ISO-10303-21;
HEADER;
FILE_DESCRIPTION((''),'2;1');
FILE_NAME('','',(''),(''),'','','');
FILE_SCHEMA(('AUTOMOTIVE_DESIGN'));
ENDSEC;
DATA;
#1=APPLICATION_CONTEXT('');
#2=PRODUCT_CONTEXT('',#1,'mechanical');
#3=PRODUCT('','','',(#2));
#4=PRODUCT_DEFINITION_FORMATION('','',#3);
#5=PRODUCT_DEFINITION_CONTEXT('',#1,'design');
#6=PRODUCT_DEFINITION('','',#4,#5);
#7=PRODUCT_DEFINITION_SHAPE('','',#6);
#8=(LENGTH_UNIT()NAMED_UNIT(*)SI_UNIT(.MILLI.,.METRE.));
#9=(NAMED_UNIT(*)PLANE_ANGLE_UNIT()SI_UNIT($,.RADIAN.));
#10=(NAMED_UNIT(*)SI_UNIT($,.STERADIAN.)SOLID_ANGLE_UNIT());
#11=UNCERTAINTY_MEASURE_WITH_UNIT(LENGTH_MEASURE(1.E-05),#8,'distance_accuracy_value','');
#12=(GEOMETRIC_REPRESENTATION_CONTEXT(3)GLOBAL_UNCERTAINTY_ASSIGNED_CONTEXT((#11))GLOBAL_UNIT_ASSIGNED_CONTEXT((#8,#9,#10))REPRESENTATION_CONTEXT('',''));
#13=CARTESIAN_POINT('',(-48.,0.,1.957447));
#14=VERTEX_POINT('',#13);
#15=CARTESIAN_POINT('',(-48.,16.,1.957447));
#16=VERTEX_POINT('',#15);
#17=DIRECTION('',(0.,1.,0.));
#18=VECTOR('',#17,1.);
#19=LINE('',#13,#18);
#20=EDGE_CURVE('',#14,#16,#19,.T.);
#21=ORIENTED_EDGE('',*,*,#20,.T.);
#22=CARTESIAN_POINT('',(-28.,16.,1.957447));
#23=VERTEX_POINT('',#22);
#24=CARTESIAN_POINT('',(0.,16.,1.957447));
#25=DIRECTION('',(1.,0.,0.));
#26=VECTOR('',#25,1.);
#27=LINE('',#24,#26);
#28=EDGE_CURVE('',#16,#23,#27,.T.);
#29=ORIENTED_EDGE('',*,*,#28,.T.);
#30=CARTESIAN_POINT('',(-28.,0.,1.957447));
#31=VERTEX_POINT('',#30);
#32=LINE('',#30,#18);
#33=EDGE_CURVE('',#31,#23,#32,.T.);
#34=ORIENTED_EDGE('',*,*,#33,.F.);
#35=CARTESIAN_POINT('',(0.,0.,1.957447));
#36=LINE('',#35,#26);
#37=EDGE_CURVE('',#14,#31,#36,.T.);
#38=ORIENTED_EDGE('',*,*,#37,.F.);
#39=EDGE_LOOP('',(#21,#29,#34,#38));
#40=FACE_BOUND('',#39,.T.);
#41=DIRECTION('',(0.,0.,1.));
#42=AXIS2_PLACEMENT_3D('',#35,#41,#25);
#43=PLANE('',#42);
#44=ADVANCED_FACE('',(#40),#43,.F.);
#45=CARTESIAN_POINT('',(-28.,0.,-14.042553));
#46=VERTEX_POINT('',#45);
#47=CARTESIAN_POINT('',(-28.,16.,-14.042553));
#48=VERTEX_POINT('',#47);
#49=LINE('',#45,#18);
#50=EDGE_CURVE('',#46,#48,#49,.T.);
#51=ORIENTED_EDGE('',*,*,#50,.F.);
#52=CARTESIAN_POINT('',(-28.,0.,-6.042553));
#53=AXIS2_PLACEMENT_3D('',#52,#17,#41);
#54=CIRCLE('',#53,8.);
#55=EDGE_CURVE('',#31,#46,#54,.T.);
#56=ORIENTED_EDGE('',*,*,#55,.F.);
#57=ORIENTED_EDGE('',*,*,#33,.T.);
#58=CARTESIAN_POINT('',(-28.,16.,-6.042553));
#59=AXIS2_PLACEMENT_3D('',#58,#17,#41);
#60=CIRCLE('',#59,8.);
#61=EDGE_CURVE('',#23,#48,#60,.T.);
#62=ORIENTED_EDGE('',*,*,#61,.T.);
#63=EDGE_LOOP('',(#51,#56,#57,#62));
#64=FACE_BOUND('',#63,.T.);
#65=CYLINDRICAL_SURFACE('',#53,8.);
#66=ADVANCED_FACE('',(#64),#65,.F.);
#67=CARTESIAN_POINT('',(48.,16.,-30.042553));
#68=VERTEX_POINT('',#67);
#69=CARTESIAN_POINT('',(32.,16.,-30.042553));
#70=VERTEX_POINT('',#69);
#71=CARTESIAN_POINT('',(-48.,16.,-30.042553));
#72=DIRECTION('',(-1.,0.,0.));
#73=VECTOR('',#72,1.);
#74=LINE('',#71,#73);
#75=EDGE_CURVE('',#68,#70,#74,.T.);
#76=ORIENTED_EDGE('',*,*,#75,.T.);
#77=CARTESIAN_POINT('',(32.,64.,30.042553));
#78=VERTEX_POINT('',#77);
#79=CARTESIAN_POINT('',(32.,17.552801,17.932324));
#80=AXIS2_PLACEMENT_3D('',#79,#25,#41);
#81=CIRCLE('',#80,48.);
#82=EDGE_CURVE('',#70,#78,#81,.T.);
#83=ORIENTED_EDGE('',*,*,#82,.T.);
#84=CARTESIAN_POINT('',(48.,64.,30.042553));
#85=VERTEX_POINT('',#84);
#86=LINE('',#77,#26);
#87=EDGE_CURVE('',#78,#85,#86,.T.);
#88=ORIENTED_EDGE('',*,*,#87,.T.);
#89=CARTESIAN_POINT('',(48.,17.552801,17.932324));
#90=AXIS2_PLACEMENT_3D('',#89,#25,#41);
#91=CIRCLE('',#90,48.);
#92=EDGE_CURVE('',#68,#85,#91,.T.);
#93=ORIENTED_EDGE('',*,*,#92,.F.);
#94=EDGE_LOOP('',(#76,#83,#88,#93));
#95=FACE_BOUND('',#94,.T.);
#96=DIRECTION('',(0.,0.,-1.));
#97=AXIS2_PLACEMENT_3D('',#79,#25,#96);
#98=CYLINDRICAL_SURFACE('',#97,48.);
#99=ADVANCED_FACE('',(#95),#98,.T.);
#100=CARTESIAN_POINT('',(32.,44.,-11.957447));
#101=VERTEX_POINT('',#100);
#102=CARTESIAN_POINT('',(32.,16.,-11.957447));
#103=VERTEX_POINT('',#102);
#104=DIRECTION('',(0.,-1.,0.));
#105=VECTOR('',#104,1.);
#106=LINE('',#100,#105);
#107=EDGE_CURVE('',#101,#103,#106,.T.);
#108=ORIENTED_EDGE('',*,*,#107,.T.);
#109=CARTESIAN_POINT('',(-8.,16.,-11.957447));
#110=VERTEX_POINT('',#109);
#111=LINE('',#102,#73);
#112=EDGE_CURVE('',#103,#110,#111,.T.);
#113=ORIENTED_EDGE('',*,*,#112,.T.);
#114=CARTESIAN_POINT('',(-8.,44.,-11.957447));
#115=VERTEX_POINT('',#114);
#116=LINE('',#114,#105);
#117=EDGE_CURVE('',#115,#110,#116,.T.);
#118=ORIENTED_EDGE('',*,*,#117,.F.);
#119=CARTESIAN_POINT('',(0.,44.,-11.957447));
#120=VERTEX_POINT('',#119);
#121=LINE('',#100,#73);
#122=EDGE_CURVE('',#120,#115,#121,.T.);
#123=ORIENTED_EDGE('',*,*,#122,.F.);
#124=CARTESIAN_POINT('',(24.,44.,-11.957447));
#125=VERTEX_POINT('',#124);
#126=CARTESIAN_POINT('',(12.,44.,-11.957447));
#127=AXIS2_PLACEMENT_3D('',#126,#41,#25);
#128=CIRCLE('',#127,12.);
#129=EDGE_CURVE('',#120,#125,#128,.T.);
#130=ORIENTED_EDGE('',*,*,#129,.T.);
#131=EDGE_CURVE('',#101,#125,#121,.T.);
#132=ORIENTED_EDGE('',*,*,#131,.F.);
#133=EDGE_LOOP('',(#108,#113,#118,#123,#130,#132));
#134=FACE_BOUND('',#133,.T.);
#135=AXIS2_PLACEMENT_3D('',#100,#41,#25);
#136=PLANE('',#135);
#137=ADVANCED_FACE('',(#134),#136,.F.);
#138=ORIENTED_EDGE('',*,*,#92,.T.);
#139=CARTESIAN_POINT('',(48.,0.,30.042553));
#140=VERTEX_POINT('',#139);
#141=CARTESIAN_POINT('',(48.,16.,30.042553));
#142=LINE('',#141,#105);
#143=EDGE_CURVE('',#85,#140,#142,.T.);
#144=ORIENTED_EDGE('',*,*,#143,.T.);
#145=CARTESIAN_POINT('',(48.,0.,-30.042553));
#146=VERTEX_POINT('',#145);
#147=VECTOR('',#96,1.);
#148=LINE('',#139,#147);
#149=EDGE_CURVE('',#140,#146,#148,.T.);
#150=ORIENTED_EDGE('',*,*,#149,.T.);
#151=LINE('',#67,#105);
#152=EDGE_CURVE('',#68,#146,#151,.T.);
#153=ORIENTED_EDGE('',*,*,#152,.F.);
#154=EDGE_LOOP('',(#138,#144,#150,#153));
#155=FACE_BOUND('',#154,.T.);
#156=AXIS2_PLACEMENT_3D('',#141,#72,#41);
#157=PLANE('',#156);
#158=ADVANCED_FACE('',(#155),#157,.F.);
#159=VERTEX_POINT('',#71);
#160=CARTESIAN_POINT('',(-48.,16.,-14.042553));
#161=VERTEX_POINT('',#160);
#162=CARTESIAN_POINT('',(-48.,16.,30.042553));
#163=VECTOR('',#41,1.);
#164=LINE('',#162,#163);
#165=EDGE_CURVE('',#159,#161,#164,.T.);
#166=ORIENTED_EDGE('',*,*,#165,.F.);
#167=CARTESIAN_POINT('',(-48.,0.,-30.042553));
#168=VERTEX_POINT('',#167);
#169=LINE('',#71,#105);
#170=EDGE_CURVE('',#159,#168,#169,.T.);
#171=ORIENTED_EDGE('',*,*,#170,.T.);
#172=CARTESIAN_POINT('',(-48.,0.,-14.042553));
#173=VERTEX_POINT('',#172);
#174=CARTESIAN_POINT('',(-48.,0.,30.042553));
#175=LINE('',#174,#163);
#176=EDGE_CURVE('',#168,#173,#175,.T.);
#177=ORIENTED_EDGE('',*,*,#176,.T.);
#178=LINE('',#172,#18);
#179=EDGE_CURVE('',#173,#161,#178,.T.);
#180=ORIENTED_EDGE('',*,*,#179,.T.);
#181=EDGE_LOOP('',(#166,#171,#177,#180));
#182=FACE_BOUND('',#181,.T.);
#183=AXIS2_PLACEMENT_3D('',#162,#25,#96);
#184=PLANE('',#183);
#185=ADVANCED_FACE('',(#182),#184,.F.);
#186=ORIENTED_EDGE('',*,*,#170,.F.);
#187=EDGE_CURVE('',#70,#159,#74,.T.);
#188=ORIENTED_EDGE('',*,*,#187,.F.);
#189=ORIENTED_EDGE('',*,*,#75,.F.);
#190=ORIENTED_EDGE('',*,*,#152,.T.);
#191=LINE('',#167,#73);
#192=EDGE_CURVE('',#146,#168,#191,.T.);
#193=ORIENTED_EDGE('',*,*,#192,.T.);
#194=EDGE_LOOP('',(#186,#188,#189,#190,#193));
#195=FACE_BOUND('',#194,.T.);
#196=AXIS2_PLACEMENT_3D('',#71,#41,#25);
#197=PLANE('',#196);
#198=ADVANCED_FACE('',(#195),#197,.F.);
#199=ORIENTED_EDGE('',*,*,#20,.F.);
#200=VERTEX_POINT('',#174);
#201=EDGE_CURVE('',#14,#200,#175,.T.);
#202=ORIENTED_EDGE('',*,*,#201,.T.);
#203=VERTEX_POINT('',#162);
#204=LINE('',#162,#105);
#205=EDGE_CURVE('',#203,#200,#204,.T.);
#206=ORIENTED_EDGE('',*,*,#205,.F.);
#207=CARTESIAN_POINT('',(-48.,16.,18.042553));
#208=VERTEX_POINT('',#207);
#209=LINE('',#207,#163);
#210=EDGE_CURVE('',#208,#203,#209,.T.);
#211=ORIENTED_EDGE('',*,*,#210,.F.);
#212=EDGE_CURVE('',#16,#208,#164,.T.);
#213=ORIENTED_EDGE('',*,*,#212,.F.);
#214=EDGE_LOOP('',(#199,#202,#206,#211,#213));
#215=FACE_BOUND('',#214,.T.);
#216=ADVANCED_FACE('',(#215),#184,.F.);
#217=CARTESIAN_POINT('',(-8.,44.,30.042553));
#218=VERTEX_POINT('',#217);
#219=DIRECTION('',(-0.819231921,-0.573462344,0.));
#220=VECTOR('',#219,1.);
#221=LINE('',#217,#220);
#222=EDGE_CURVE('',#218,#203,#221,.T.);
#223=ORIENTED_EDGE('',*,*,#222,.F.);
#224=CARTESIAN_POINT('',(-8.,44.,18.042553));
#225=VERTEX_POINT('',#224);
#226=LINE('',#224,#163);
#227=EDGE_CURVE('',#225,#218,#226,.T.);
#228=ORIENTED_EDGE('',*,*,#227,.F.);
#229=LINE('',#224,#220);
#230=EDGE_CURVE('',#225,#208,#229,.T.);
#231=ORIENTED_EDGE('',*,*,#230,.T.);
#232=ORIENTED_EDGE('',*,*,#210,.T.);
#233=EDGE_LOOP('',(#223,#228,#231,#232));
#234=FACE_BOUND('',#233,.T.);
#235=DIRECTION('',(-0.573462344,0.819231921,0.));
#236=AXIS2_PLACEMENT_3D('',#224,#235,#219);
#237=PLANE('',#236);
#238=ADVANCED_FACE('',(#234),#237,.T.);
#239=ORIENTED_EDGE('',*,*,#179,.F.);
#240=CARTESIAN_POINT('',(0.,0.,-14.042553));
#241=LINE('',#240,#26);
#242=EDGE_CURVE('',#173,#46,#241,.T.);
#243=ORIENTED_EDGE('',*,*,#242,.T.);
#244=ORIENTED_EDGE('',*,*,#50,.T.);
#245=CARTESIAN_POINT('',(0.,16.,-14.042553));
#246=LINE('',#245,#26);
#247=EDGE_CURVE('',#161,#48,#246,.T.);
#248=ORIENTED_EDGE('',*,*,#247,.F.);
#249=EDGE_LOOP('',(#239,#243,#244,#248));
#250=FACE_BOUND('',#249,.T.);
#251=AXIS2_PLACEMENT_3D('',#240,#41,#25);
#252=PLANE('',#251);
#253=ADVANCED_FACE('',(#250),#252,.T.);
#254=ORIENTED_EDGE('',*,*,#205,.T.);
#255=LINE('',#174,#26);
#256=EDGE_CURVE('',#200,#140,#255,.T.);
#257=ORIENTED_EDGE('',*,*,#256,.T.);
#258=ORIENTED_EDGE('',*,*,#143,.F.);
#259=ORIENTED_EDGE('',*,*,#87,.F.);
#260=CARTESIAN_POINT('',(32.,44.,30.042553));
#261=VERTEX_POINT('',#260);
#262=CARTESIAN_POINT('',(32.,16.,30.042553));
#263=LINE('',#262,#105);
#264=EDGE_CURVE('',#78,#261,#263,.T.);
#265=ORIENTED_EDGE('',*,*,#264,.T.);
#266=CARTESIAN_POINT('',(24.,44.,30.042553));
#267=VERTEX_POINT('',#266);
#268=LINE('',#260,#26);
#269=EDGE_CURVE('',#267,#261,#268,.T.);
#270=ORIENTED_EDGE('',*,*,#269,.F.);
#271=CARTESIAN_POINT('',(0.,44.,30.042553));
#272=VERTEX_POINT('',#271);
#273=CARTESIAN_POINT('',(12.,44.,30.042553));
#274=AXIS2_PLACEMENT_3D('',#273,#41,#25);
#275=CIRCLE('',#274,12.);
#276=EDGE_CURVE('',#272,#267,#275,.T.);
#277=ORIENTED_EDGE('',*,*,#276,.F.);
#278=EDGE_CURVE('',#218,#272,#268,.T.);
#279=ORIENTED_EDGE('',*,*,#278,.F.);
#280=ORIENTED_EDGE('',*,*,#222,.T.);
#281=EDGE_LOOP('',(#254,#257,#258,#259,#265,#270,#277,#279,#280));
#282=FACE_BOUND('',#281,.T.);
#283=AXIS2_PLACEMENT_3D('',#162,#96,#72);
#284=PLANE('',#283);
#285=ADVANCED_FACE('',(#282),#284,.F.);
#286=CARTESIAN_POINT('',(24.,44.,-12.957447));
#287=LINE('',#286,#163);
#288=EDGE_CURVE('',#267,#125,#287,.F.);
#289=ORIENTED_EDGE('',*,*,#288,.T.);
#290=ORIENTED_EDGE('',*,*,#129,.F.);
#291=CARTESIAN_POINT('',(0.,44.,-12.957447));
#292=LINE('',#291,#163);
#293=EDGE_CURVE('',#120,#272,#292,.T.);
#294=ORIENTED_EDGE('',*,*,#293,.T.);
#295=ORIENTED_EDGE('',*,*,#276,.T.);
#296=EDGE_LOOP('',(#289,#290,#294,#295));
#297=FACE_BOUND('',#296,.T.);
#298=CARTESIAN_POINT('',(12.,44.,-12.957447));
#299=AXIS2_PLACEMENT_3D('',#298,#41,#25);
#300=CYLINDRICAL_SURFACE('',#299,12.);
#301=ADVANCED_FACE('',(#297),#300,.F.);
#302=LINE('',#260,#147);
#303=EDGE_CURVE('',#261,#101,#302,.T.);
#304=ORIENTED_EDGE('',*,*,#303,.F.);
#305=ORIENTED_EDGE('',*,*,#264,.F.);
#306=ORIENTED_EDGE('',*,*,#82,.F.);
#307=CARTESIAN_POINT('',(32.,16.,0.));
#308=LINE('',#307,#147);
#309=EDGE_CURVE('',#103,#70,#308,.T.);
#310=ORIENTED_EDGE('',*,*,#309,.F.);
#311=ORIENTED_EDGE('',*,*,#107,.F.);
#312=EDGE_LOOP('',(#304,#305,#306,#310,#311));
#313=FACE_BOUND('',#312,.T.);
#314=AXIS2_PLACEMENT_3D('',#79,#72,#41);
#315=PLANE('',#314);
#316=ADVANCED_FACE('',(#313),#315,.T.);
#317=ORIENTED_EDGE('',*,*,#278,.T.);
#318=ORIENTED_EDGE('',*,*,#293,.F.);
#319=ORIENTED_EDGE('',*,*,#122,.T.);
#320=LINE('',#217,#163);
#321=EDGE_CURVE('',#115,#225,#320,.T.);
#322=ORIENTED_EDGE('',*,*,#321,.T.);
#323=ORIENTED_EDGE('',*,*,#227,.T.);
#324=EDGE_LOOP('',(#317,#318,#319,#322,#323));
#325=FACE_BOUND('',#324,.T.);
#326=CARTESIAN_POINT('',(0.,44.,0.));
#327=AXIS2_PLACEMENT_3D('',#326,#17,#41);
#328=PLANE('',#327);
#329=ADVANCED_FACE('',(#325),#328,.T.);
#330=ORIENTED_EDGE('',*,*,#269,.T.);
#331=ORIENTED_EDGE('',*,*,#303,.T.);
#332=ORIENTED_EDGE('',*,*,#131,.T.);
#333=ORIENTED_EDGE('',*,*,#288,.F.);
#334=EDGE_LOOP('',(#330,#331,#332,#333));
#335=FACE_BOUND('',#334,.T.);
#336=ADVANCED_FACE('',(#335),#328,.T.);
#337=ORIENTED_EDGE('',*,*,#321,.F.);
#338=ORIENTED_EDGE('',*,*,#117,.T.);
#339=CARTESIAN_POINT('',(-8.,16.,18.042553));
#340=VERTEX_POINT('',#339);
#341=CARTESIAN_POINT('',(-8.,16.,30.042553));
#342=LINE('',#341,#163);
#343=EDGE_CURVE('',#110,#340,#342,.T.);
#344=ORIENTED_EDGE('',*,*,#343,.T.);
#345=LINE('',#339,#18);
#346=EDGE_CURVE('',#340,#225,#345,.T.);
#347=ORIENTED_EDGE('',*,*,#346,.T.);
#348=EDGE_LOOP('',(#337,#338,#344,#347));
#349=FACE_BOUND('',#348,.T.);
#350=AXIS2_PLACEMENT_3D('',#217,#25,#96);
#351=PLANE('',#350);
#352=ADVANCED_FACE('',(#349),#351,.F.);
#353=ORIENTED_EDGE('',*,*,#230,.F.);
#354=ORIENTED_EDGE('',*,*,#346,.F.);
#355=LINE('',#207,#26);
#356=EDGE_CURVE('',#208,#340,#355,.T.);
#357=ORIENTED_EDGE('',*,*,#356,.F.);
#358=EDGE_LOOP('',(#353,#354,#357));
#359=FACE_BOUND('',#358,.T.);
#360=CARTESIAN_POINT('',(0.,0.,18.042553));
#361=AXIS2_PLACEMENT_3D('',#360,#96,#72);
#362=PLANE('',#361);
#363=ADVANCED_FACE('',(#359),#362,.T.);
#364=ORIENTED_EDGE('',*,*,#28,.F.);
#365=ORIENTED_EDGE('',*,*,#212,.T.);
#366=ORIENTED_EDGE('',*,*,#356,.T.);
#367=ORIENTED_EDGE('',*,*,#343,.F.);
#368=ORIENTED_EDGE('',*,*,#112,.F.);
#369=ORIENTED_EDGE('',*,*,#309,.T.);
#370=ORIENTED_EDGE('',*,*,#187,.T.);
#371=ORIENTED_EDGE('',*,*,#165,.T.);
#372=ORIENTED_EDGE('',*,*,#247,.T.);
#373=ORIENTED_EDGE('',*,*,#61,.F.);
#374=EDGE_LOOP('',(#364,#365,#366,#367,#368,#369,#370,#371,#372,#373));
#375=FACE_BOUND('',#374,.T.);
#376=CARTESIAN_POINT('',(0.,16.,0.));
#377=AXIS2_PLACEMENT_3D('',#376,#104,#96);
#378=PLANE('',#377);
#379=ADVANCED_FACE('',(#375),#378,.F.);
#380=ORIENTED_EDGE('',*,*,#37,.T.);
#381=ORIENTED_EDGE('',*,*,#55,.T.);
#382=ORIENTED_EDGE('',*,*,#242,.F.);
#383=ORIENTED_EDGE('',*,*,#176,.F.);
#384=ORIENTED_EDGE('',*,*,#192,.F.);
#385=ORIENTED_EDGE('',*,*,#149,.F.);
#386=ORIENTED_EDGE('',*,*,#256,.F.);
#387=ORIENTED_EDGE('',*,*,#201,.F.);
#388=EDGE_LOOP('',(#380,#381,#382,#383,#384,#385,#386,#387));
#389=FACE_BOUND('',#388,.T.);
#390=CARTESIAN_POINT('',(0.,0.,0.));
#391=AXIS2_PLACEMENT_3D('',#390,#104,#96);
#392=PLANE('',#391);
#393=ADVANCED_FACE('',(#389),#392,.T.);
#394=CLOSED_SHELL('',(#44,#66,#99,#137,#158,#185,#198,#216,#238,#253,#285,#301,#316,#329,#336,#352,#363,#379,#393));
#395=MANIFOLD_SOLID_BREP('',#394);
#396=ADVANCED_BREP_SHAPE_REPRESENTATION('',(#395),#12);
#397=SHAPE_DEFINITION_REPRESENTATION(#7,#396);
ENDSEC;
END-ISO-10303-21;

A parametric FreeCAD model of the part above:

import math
import FreeCAD as App
import Part
import Sketcher
from FreeCAD import Vector


def add_polygon(sketch, points):
    """Adds a closed chain of lines whose ends are joined by coincident constraints."""
    first, n = sketch.GeometryCount, len(points)
    for a, b in zip(points, points[1:] + points[:1]):
        sketch.addGeometry(Part.LineSegment(App.Vector(*a, 0), App.Vector(*b, 0)), False)
    for i in range(n):
        sketch.addConstraint(Sketcher.Constraint("Coincident", first + i, 2, first + (i + 1) % n, 1))

doc = App.newDocument("Part")
body = doc.addObject("PartDesign::Body", "Body")

# Sketch on XZ plane
sketch1 = body.newObject("Sketcher::SketchObject", "Sketch")
sketch1.AttachmentSupport = (doc.getObject("XZ_Plane"), [""])
sketch1.MapMode = "FlatFace"
add_polygon(sketch1, [(-48, -30), (-48, 30), (48, 30), (48, -30)])  # lines 0-3
sketch1.addConstraint([
    Sketcher.Constraint("Vertical", 0),
    Sketcher.Constraint("Horizontal", 1),
    Sketcher.Constraint("Vertical", 2),
    Sketcher.Constraint("Horizontal", 3),
    Sketcher.Constraint("Symmetric", 0, 2, 2, 2, -1, 1),
    Sketcher.Constraint("DistanceX", 1, 1, 1, 2, 96.0),
    Sketcher.Constraint("DistanceY", 0, 1, 0, 2, 60.085106),
])
pad1 = body.newObject("PartDesign::Pad", "Pad")
pad1.Profile = sketch1
pad1.Length = 16
pad1.Reversed = True

# Sketch on YZ plane
sketch2 = body.newObject("Sketcher::SketchObject", "Sketch001")
sketch2.AttachmentSupport = (doc.getObject("YZ_Plane"), [""])
sketch2.MapMode = "FlatFace"
sketch2.AttachmentOffset = App.Placement(Vector(0, 0, 48), App.Rotation())
sketch2.addGeometry([
    Part.ArcOfCircle(Part.Circle(Vector(18, 18, 0), Vector(0, 0, 1), 48), math.radians(-92), math.radians(15)),
    Part.LineSegment(Vector(64, 30, 0), Vector(0, 30, 0)),
    Part.LineSegment(Vector(0, 30, 0), Vector(0, -30, 0)),
    Part.LineSegment(Vector(0, -30, 0), Vector(16, -30, 0)),
], False)
sketch2.addConstraint([
    Sketcher.Constraint("Coincident", 0, 2, 1, 1),
    Sketcher.Constraint("Coincident", 1, 2, 2, 1),
    Sketcher.Constraint("Coincident", 2, 2, 3, 1),
    Sketcher.Constraint("Coincident", 3, 2, 0, 1),
    Sketcher.Constraint("Horizontal", 1),
    Sketcher.Constraint("Vertical", 2),
    Sketcher.Constraint("Horizontal", 3),
    Sketcher.Constraint("Symmetric", 1, 2, 2, 2, -1, 1),
    Sketcher.Constraint("Radius", 0, 48.0),
    Sketcher.Constraint("DistanceX", 1, 2, 1, 1, 64.0),
    Sketcher.Constraint("DistanceX", 3, 1, 3, 2, 16.0),
    Sketcher.Constraint("DistanceX", -1, 1, 0, 3, 17.552801),
])
pad2 = body.newObject("PartDesign::Pad", "Pad001")
pad2.Profile = sketch2
pad2.Length = 16
pad2.Reversed = True

# Sketch on XZ plane
sketch3 = body.newObject("Sketcher::SketchObject", "Sketch002")
sketch3.AttachmentSupport = (doc.getObject("XZ_Plane"), [""])
sketch3.MapMode = "FlatFace"
sketch3.AttachmentOffset = App.Placement(Vector(0, 0, -16), App.Rotation())
add_polygon(sketch3, [(-8, -12), (-8, 30), (32, 30), (32, -12)])  # lines 0-3
sketch3.addConstraint([
    Sketcher.Constraint("Vertical", 0),
    Sketcher.Constraint("Horizontal", 1),
    Sketcher.Constraint("Vertical", 2),
    Sketcher.Constraint("Horizontal", 3),
    Sketcher.Constraint("DistanceX", 1, 1, 1, 2, 40.0),
    Sketcher.Constraint("DistanceY", 0, 1, 0, 2, 42.0),
    Sketcher.Constraint("DistanceX", 0, 2, -1, 1, 8.0),
    Sketcher.Constraint("DistanceY", -1, 1, 0, 2, 30.042553),
])
pad3 = body.newObject("PartDesign::Pad", "Pad002")
pad3.Profile = sketch3
pad3.Length = 28
pad3.Reversed = True

# Sketch on XY plane
sketch4 = body.newObject("Sketcher::SketchObject", "Sketch003")
sketch4.AttachmentSupport = (doc.getObject("XY_Plane"), [""])
sketch4.MapMode = "FlatFace"
sketch4.AttachmentOffset = App.Placement(Vector(0, 0, 30.042553), App.Rotation())
sketch4.addGeometry(Part.Circle(Vector(12, 44, 0), Vector(0, 0, 1), 12), False)
sketch4.addConstraint([
    Sketcher.Constraint("Diameter", 0, 24.0),
    Sketcher.Constraint("DistanceX", -1, 1, 0, 3, 12.0),
    Sketcher.Constraint("DistanceY", -1, 1, 0, 3, 44.0),
])
pocket1 = body.newObject("PartDesign::Pocket", "Pocket")
pocket1.Profile = sketch4
pocket1.Length = 43

# Sketch on XY plane
sketch5 = body.newObject("Sketcher::SketchObject", "Sketch004")
sketch5.AttachmentSupport = (doc.getObject("XY_Plane"), [""])
sketch5.MapMode = "FlatFace"
sketch5.AttachmentOffset = App.Placement(Vector(0, 0, 30.042553), App.Rotation())
add_polygon(sketch5, [(-8, 44), (-48, 16), (-8, 16)])  # lines 0-2
sketch5.addConstraint([
    Sketcher.Constraint("Horizontal", 1),
    Sketcher.Constraint("Vertical", 2),
    Sketcher.Constraint("DistanceX", 1, 1, 1, 2, 40.0),
    Sketcher.Constraint("DistanceY", 2, 1, 2, 2, 28.0),
    Sketcher.Constraint("DistanceX", 0, 2, -1, 1, 48.0),
    Sketcher.Constraint("DistanceY", -1, 1, 0, 2, 16.0),
])
pad4 = body.newObject("PartDesign::Pad", "Pad003")
pad4.Profile = sketch5
pad4.Length = 12
pad4.Reversed = True

# Sketch on XZ plane
sketch6 = body.newObject("Sketcher::SketchObject", "Sketch005")
sketch6.AttachmentSupport = (doc.getObject("XZ_Plane"), [""])
sketch6.MapMode = "FlatFace"
sketch6.AttachmentOffset = App.Placement(Vector(0, 0, -16), App.Rotation())
sketch6.addGeometry([
    Part.LineSegment(Vector(-48, -14, 0), Vector(-48, 2, 0)),  # 0
    Part.LineSegment(Vector(-48, 2, 0), Vector(-28, 2, 0)),  # 1
    Part.ArcOfCircle(Part.Circle(Vector(-28, -6, 0), Vector(0, 0, 1), 8), math.radians(0), math.radians(90)),  # 2
    Part.ArcOfCircle(Part.Circle(Vector(-28, -6, 0), Vector(0, 0, 1), 8), math.radians(-90), math.radians(0)),  # 3
    Part.LineSegment(Vector(-28, -14, 0), Vector(-48, -14, 0)),  # 4
], False)
sketch6.addConstraint([
    Sketcher.Constraint("Coincident", 0, 2, 1, 1),
    Sketcher.Constraint("Tangent", 1, 2, 2, 2),
    Sketcher.Constraint("Tangent", 2, 1, 3, 2),
    Sketcher.Constraint("Tangent", 3, 1, 4, 1),
    Sketcher.Constraint("Coincident", 4, 2, 0, 1),
    Sketcher.Constraint("Vertical", 0),
    Sketcher.Constraint("Horizontal", 1),
    Sketcher.Constraint("Horizontal", 4),
    Sketcher.Constraint("Equal", 2, 3),
    Sketcher.Constraint("Horizontal", 3, 3, 2, 1),
    Sketcher.Constraint("Radius", 2, 8.0),
    Sketcher.Constraint("DistanceX", 1, 1, 1, 2, 20.0),
    Sketcher.Constraint("DistanceX", 2, 3, -1, 1, 28.0),
    Sketcher.Constraint("DistanceY", 2, 3, -1, 1, 6.042553),
])
pocket2 = body.newObject("PartDesign::Pocket", "Pocket001")
pocket2.Profile = sketch6
pocket2.Length = 16
pocket2.Reversed = True

doc.recompute()
